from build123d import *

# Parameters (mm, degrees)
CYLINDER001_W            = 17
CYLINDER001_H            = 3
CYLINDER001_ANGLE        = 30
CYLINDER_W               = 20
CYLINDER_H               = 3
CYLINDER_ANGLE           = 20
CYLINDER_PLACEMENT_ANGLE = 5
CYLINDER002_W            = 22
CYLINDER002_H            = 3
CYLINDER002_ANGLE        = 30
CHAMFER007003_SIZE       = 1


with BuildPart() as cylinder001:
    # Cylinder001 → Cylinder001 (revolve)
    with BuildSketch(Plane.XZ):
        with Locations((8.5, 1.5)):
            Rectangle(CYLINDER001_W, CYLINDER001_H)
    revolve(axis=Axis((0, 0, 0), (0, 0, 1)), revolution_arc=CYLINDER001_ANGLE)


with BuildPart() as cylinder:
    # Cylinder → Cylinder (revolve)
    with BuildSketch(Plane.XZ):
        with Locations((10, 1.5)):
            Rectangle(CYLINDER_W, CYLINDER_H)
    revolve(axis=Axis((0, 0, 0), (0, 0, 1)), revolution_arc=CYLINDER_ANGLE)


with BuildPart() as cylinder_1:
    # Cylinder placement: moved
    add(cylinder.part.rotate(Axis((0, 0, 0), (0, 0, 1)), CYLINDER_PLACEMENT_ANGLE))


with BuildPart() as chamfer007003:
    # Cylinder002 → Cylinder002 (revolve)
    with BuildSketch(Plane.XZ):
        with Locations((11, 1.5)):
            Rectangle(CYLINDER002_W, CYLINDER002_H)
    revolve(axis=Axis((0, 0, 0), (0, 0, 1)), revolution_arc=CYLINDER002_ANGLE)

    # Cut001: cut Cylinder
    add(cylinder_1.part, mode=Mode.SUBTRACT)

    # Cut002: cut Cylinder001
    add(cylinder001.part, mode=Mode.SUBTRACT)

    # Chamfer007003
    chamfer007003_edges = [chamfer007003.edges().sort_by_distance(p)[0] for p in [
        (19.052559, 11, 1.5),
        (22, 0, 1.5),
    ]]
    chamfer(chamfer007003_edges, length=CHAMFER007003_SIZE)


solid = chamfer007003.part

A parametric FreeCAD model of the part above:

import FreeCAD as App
import Part
import Sketcher
from FreeCAD import Vector
Q = App.Units.Quantity


def edges_at(feature, points):
    """Names of the edges that pass closest to the given points."""
    edges = feature.Shape.Edges
    near = lambda p: min(range(len(edges)), key=lambda i: edges[i].distToShape(Part.Vertex(*p))[0])
    return sorted({f"Edge{near(p) + 1}" for p in points})

doc = App.newDocument("Part")
body = doc.addObject("PartDesign::Body", "Body")

# Sketch on XZ plane
sketch1 = body.newObject("Sketcher::SketchObject", "Sketch")
sketch1.AttachmentSupport = (doc.getObject("XZ_Plane"), [""])
sketch1.MapMode = "FlatFace"
sketch1.addGeometry([
    Part.LineSegment(Vector(0, 3, 0), Vector(0, 0, 0)),
    Part.LineSegment(Vector(0, 0, 0), Vector(17, 0, 0)),
    Part.LineSegment(Vector(17, 0, 0), Vector(17, 3, 0)),
    Part.LineSegment(Vector(17, 3, 0), Vector(0, 3, 0)),
], False)
sketch1.addConstraint([
    Sketcher.Constraint("Coincident", 0, 2, 1, 1),
    Sketcher.Constraint("Coincident", 1, 2, 2, 1),
    Sketcher.Constraint("Coincident", 2, 2, 3, 1),
    Sketcher.Constraint("Coincident", 3, 2, 0, 1),
    Sketcher.Constraint("Vertical", 0),
    Sketcher.Constraint("Horizontal", 1),
    Sketcher.Constraint("Vertical", 2),
    Sketcher.Constraint("Horizontal", 3),
    Sketcher.Constraint("Coincident", 0, 2, -1, 1),
    Sketcher.Constraint("DistanceX", 1, 1, 1, 2, Q("17 mm")),
    Sketcher.Constraint("DistanceY", 0, 2, 0, 1, Q("3 mm")),
])
revolution = body.newObject("PartDesign::Revolution", "Revolution")
revolution.Profile = sketch1
revolution.ReferenceAxis = (sketch1, ["V_Axis"])
revolution.Angle = 30
body2 = doc.addObject("PartDesign::Body", "Body001")

# Sketch on XZ plane
sketch2 = body2.newObject("Sketcher::SketchObject", "Sketch001")
sketch2.AttachmentSupport = (doc.getObject("XZ_Plane001"), [""])
sketch2.MapMode = "FlatFace"
sketch2.addGeometry([
    Part.LineSegment(Vector(0, 3, 0), Vector(0, 0, 0)),
    Part.LineSegment(Vector(0, 0, 0), Vector(20, 0, 0)),
    Part.LineSegment(Vector(20, 0, 0), Vector(20, 3, 0)),
    Part.LineSegment(Vector(20, 3, 0), Vector(0, 3, 0)),
], False)
sketch2.addConstraint([
    Sketcher.Constraint("Coincident", 0, 2, 1, 1),
    Sketcher.Constraint("Coincident", 1, 2, 2, 1),
    Sketcher.Constraint("Coincident", 2, 2, 3, 1),
    Sketcher.Constraint("Coincident", 3, 2, 0, 1),
    Sketcher.Constraint("Vertical", 0),
    Sketcher.Constraint("Horizontal", 1),
    Sketcher.Constraint("Vertical", 2),
    Sketcher.Constraint("Horizontal", 3),
    Sketcher.Constraint("Coincident", 0, 2, -1, 1),
    Sketcher.Constraint("DistanceX", 1, 1, 1, 2, Q("20 mm")),
    Sketcher.Constraint("DistanceY", 0, 2, 0, 1, Q("3 mm")),
])
revolution2 = body2.newObject("PartDesign::Revolution", "Revolution001")
revolution2.Profile = sketch2
revolution2.ReferenceAxis = (sketch2, ["V_Axis"])
revolution2.Angle = 20
body3 = doc.addObject("PartDesign::Body", "Body002")
doc.recompute()

body2.Placement = App.Placement(Vector(0, 0, 0), App.Rotation(Vector(0, 0, 1), 5))
boolean = body3.newObject("PartDesign::Boolean", "Boolean")
boolean.Type = "Fuse"
boolean.addObjects([body2])
body4 = doc.addObject("PartDesign::Body", "Body003")

# Sketch on XZ plane
sketch3 = body4.newObject("Sketcher::SketchObject", "Sketch002")
sketch3.AttachmentSupport = (doc.getObject("XZ_Plane003"), [""])
sketch3.MapMode = "FlatFace"
sketch3.addGeometry([
    Part.LineSegment(Vector(0, 3, 0), Vector(0, 0, 0)),
    Part.LineSegment(Vector(0, 0, 0), Vector(22, 0, 0)),
    Part.LineSegment(Vector(22, 0, 0), Vector(22, 3, 0)),
    Part.LineSegment(Vector(22, 3, 0), Vector(0, 3, 0)),
], False)
sketch3.addConstraint([
    Sketcher.Constraint("Coincident", 0, 2, 1, 1),
    Sketcher.Constraint("Coincident", 1, 2, 2, 1),
    Sketcher.Constraint("Coincident", 2, 2, 3, 1),
    Sketcher.Constraint("Coincident", 3, 2, 0, 1),
    Sketcher.Constraint("Vertical", 0),
    Sketcher.Constraint("Horizontal", 1),
    Sketcher.Constraint("Vertical", 2),
    Sketcher.Constraint("Horizontal", 3),
    Sketcher.Constraint("Coincident", 0, 2, -1, 1),
    Sketcher.Constraint("DistanceX", 1, 1, 1, 2, Q("22 mm")),
    Sketcher.Constraint("DistanceY", 0, 2, 0, 1, Q("3 mm")),
])
revolution3 = body4.newObject("PartDesign::Revolution", "Revolution002")
revolution3.Profile = sketch3
revolution3.ReferenceAxis = (sketch3, ["V_Axis"])
revolution3.Angle = 30
doc.recompute()

boolean2 = body4.newObject("PartDesign::Boolean", "Boolean001")
boolean2.Type = "Cut"
boolean2.addObjects([body3])
doc.recompute()

boolean3 = body4.newObject("PartDesign::Boolean", "Boolean002")
boolean3.Type = "Cut"
boolean3.addObjects([body])
doc.recompute()

chamfer = body4.newObject("PartDesign::Chamfer", "Chamfer")
chamfer.Base = (boolean3, edges_at(boolean3, [(19.053, 11, 1.5), (22, 0, 1.5)]))
chamfer.Size = 1

doc.recompute()
